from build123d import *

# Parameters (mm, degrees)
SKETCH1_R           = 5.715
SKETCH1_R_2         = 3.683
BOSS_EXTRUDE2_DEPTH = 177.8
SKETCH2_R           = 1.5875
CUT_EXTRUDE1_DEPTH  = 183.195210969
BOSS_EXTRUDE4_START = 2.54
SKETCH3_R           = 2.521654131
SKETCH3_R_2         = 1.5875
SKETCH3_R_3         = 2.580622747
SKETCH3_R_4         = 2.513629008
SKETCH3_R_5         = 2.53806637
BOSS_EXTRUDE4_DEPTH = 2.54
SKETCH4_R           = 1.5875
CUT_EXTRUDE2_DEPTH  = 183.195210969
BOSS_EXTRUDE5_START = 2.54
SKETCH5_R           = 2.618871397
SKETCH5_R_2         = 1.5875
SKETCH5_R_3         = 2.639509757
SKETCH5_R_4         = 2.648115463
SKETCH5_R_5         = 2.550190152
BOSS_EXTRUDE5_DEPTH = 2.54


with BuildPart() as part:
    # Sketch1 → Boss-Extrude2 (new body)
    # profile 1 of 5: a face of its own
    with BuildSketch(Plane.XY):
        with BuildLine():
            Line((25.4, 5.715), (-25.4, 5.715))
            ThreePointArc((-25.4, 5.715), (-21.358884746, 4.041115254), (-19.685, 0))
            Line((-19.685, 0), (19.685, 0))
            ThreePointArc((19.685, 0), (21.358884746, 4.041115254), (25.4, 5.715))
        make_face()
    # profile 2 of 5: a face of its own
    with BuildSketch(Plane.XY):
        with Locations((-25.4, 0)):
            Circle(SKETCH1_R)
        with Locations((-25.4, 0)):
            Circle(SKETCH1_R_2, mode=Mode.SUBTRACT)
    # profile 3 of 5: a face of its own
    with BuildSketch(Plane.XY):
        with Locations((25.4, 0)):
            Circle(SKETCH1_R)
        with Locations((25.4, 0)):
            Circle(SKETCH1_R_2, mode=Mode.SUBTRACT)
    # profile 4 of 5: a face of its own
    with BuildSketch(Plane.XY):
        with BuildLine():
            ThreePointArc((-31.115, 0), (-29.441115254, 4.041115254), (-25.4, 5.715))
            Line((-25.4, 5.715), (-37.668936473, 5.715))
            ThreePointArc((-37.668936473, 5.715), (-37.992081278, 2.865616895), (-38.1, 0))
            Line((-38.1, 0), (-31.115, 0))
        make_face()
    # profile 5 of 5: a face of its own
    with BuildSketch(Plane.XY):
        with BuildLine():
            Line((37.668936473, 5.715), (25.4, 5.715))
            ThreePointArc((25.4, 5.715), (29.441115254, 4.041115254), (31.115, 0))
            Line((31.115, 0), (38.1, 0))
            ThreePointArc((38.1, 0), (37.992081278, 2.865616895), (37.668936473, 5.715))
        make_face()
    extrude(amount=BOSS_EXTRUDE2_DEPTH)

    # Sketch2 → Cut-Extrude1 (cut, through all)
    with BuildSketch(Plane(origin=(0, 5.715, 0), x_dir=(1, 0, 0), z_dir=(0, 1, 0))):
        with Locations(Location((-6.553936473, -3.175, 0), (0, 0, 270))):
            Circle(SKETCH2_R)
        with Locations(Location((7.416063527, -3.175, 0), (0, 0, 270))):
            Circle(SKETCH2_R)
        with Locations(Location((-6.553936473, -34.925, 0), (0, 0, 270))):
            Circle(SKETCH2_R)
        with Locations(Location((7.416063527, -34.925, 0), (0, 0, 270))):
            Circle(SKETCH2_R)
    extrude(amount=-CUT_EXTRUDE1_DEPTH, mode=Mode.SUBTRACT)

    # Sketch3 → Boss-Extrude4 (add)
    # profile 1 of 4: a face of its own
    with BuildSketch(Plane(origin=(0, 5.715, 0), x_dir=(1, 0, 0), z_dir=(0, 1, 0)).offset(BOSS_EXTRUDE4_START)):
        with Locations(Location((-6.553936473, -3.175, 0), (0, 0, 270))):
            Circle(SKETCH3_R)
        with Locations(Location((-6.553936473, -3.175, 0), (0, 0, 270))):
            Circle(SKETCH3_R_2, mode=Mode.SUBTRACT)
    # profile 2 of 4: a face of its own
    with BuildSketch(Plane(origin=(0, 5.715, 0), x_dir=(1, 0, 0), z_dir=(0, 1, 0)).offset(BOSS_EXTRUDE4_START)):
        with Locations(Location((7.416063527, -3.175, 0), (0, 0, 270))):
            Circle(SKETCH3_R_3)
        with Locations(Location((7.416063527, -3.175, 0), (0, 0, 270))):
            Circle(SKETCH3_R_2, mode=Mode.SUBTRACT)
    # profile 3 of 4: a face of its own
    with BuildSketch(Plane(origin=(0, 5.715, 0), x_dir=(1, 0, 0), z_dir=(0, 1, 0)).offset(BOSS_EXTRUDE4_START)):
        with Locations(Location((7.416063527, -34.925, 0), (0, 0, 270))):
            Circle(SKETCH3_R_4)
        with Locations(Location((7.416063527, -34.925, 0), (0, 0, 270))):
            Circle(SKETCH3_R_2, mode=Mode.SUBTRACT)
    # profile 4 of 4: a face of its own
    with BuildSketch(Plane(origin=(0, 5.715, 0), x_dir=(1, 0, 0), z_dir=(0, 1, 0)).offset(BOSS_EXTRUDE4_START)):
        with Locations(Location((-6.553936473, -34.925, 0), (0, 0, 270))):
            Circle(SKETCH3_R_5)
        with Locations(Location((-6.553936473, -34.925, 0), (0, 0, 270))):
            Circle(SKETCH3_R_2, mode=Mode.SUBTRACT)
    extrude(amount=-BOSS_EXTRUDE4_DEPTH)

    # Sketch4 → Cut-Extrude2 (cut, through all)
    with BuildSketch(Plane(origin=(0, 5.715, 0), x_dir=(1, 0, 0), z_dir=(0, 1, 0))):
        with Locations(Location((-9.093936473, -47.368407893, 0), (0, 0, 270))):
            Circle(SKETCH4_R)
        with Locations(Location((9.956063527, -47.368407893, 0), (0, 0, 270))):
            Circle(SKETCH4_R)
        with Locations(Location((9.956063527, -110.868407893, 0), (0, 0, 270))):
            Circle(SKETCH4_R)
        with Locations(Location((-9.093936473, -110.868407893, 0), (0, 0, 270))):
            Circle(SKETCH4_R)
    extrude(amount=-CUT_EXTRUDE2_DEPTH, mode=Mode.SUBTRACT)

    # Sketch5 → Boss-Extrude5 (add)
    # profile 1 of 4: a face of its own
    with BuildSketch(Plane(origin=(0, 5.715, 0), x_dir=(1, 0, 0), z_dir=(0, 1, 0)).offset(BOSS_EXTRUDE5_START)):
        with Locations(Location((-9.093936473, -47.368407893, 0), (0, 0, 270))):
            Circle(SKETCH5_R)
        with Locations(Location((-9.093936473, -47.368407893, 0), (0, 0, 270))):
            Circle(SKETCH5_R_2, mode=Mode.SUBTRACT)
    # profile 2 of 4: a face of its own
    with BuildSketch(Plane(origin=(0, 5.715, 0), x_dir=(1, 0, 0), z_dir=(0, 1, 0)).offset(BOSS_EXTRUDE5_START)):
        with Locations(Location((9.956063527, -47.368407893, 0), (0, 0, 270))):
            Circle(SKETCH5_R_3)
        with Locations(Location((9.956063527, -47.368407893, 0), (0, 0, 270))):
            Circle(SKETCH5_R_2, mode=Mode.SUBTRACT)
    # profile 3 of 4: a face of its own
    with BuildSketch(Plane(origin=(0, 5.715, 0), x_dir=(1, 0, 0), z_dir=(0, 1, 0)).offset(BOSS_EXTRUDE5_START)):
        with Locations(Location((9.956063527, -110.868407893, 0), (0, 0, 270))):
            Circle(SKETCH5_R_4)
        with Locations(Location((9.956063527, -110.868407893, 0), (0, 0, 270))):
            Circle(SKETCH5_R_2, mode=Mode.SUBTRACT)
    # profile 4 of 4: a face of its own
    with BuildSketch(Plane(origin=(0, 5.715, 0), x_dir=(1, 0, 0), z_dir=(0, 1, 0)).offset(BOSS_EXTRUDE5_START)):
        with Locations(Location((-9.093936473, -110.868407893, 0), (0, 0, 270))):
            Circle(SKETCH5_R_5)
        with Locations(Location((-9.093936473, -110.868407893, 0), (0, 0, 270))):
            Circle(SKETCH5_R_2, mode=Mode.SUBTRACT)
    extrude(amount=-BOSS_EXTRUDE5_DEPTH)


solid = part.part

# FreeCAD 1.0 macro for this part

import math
import FreeCAD as App
import Part
import Sketcher
Q = App.Units.Quantity

doc = App.newDocument("Part")
body = doc.addObject("PartDesign::Body", "Body")

# Sketch on XY plane
sketch1 = body.newObject("Sketcher::SketchObject", "Sketch")
sketch1.AttachmentSupport = (doc.getObject("XY_Plane"), [""])
sketch1.MapMode = "FlatFace"
sketch1.addGeometry([
    Part.ArcOfCircle(Part.Circle(App.Vector(0, 0, 0), App.Vector(0, 0, 1), 38.1), math.radians(171.37), math.radians(180)),  # 0
    Part.LineSegment(App.Vector(-38.1, 0, 0), App.Vector(-31.1, 0, 0)),  # 1
    Part.ArcOfCircle(Part.Circle(App.Vector(-25.4, 0, 0), App.Vector(0, 0, 1), 5.7), math.radians(180), math.radians(360)),  # 2
    Part.LineSegment(App.Vector(-19.7, 0, 0), App.Vector(19.7, 0, 0)),  # 3
    Part.ArcOfCircle(Part.Circle(App.Vector(25.4, 0, 0), App.Vector(0, 0, 1), 5.7), math.radians(180), math.radians(360)),  # 4
    Part.LineSegment(App.Vector(31.1, 0, 0), App.Vector(38.1, 0, 0)),  # 5
    Part.ArcOfCircle(Part.Circle(App.Vector(0, 0, 0), App.Vector(0, 0, 1), 38.1), math.radians(0), math.radians(8.63)),  # 6
    Part.LineSegment(App.Vector(37.7, 5.7, 0), App.Vector(-37.7, 5.7, 0)),  # 7
    Part.Circle(App.Vector(-25.4, 0, 0), App.Vector(0, 0, 1), 3.7),  # 8
    Part.Circle(App.Vector(25.4, 0, 0), App.Vector(0, 0, 1), 3.7),  # 9
], False)
sketch1.addConstraint([
    Sketcher.Constraint("Coincident", 0, 2, 1, 1),
    Sketcher.Constraint("Coincident", 1, 2, 2, 1),
    Sketcher.Constraint("Coincident", 2, 2, 3, 1),
    Sketcher.Constraint("Coincident", 3, 2, 4, 1),
    Sketcher.Constraint("Coincident", 4, 2, 5, 1),
    Sketcher.Constraint("Coincident", 5, 2, 6, 1),
    Sketcher.Constraint("Coincident", 6, 2, 7, 1),
    Sketcher.Constraint("Coincident", 7, 2, 0, 1),
    Sketcher.Constraint("Horizontal", 1),
    Sketcher.Constraint("Horizontal", 3),
    Sketcher.Constraint("Horizontal", 5),
    Sketcher.Constraint("Horizontal", 7),
    Sketcher.Constraint("Coincident", 0, 3, -1, 1),
    Sketcher.Constraint("Coincident", 6, 3, -1, 1),
    Sketcher.Constraint("Coincident", 8, 3, 2, 3),
    Sketcher.Constraint("Coincident", 9, 3, 4, 3),
    Sketcher.Constraint("Equal", 2, 4),
    Sketcher.Constraint("Equal", 0, 6),
    Sketcher.Constraint("Equal", 8, 9),
    Sketcher.Constraint("Symmetric", 2, 3, 4, 3, -1, 1),
    Sketcher.Constraint("PointOnObject", 2, 3, -1),
    Sketcher.Constraint("PointOnObject", 0, 2, -1),
    Sketcher.Constraint("PointOnObject", 2, 2, -1),
    Sketcher.Constraint("PointOnObject", 4, 2, -1),
    Sketcher.Constraint("Radius", 0, Q("1.5 in")),
    Sketcher.Constraint("Diameter", 8, Q("0.29 in")),
    Sketcher.Constraint("DistanceX", 2, 3, -1, 1, Q("1 in")),
    Sketcher.Constraint("Radius", 2, Q("0.225 in")),
    Sketcher.Constraint("DistanceY", -1, 1, 6, 2, Q("0.225 in")),
])
pad1 = body.newObject("PartDesign::Pad", "Pad")
pad1.Profile = sketch1
pad1.Length = Q("7 in")

# Sketch on XZ plane
sketch2 = body.newObject("Sketcher::SketchObject", "Sketch001")
sketch2.AttachmentSupport = (doc.getObject("XZ_Plane"), [""])
sketch2.MapMode = "FlatFace"
sketch2.AttachmentOffset = App.Placement(App.Vector(0, 0, -0.225 * 25.4), App.Rotation())
sketch2.addGeometry([
    Part.Circle(App.Vector(-6.6, 3.2, 0), App.Vector(0, 0, 1), 1.6),
    Part.Circle(App.Vector(7.4, 3.2, 0), App.Vector(0, 0, 1), 1.6),
    Part.Circle(App.Vector(-6.6, 34.9, 0), App.Vector(0, 0, 1), 1.6),
    Part.Circle(App.Vector(7.4, 34.9, 0), App.Vector(0, 0, 1), 1.6),
], False)
sketch2.addConstraint([
    Sketcher.Constraint("Equal", 0, 1),
    Sketcher.Constraint("Equal", 1, 2),
    Sketcher.Constraint("Equal", 2, 3),
    Sketcher.Constraint("Horizontal", 0, 3, 1, 3),
    Sketcher.Constraint("Horizontal", 2, 3, 3, 3),
    Sketcher.Constraint("Vertical", 0, 3, 2, 3),
    Sketcher.Constraint("Vertical", 1, 3, 3, 3),
    Sketcher.Constraint("Diameter", 0, Q("0.125 in")),
    Sketcher.Constraint("DistanceX", 0, 3, 1, 3, Q("0.55 in")),
    Sketcher.Constraint("DistanceY", 0, 3, 2, 3, Q("1.25 in")),
    Sketcher.Constraint("DistanceY", -1, 1, 0, 3, Q("0.125 in")),
    Sketcher.Constraint("DistanceX", 0, 3, -1, 1, 6.553936),
])
pocket1 = body.newObject("PartDesign::Pocket", "Pocket")
pocket1.Profile = sketch2
pocket1.Type = "ThroughAll"
pocket1.Reversed = True

# Sketch on XZ plane
sketch3 = body.newObject("Sketcher::SketchObject", "Sketch002")
sketch3.AttachmentSupport = (doc.getObject("XZ_Plane"), [""])
sketch3.MapMode = "FlatFace"
sketch3.AttachmentOffset = App.Placement(App.Vector(0, 0, -0.325 * 25.4), App.Rotation())
sketch3.addGeometry([
    Part.Circle(App.Vector(-6.6, 3.2, 0), App.Vector(0, 0, 1), 2.5),  # 0
    Part.Circle(App.Vector(-6.6, 3.2, 0), App.Vector(0, 0, 1), 1.6),  # 1
    Part.Circle(App.Vector(7.4, 3.2, 0), App.Vector(0, 0, 1), 2.6),  # 2
    Part.Circle(App.Vector(7.4, 3.2, 0), App.Vector(0, 0, 1), 1.6),  # 3
    Part.Circle(App.Vector(7.4, 34.9, 0), App.Vector(0, 0, 1), 2.5),  # 4
    Part.Circle(App.Vector(7.4, 34.9, 0), App.Vector(0, 0, 1), 1.6),  # 5
    Part.Circle(App.Vector(-6.6, 34.9, 0), App.Vector(0, 0, 1), 2.5),  # 6
    Part.Circle(App.Vector(-6.6, 34.9, 0), App.Vector(0, 0, 1), 1.6),  # 7
], False)
sketch3.addConstraint([
    Sketcher.Constraint("Coincident", 1, 3, 0, 3),
    Sketcher.Constraint("Coincident", 3, 3, 2, 3),
    Sketcher.Constraint("Coincident", 5, 3, 4, 3),
    Sketcher.Constraint("Coincident", 7, 3, 6, 3),
    Sketcher.Constraint("Equal", 1, 3),
    Sketcher.Constraint("Equal", 3, 5),
    Sketcher.Constraint("Equal", 5, 7),
    Sketcher.Constraint("Horizontal", 1, 3, 2, 3),
    Sketcher.Constraint("Horizontal", 5, 3, 6, 3),
    Sketcher.Constraint("Vertical", 3, 3, 4, 3),
    Sketcher.Constraint("Vertical", 1, 3, 6, 3),
    Sketcher.Constraint("Diameter", 1, Q("0.125 in")),
    Sketcher.Constraint("DistanceX", 0, 3, 2, 3, Q("0.55 in")),
    Sketcher.Constraint("DistanceY", 2, 3, 4, 3, Q("1.25 in")),
    Sketcher.Constraint("Diameter", 0, 5.043308),
    Sketcher.Constraint("Diameter", 4, 5.027258),
    Sketcher.Constraint("DistanceY", -1, 1, 0, 3, Q("0.125 in")),
    Sketcher.Constraint("Diameter", 2, 5.161245),
    Sketcher.Constraint("Diameter", 6, 5.076133),
    Sketcher.Constraint("DistanceX", 0, 3, -1, 1, 6.553936),
])
pad2 = body.newObject("PartDesign::Pad", "Pad001")
pad2.Profile = sketch3
pad2.Length = Q("0.1 in")

# Sketch on XZ plane
sketch4 = body.newObject("Sketcher::SketchObject", "Sketch003")
sketch4.AttachmentSupport = (doc.getObject("XZ_Plane"), [""])
sketch4.MapMode = "FlatFace"
sketch4.AttachmentOffset = App.Placement(App.Vector(0, 0, -0.225 * 25.4), App.Rotation())
sketch4.addGeometry([
    Part.Circle(App.Vector(-9.1, 47.4, 0), App.Vector(0, 0, 1), 1.6),
    Part.Circle(App.Vector(10, 47.4, 0), App.Vector(0, 0, 1), 1.6),
    Part.Circle(App.Vector(10, 110.9, 0), App.Vector(0, 0, 1), 1.6),
    Part.Circle(App.Vector(-9.1, 110.9, 0), App.Vector(0, 0, 1), 1.6),
], False)
sketch4.addConstraint([
    Sketcher.Constraint("Equal", 0, 1),
    Sketcher.Constraint("Equal", 1, 2),
    Sketcher.Constraint("Equal", 2, 3),
    Sketcher.Constraint("Horizontal", 0, 3, 1, 3),
    Sketcher.Constraint("Horizontal", 2, 3, 3, 3),
    Sketcher.Constraint("Vertical", 1, 3, 2, 3),
    Sketcher.Constraint("Vertical", 0, 3, 3, 3),
    Sketcher.Constraint("Diameter", 0, Q("0.125 in")),
    Sketcher.Constraint("DistanceY", 1, 3, 2, 3, Q("2.5 in")),
    Sketcher.Constraint("DistanceX", 0, 3, 1, 3, Q("0.75 in")),
    Sketcher.Constraint("DistanceX", 0, 3, -1, 1, 9.093936),
    Sketcher.Constraint("DistanceY", -1, 1, 0, 3, 47.368408),
])
pocket2 = body.newObject("PartDesign::Pocket", "Pocket001")
pocket2.Profile = sketch4
pocket2.Type = "ThroughAll"
pocket2.Reversed = True

# Sketch on XZ plane
sketch5 = body.newObject("Sketcher::SketchObject", "Sketch004")
sketch5.AttachmentSupport = (doc.getObject("XZ_Plane"), [""])
sketch5.MapMode = "FlatFace"
sketch5.AttachmentOffset = App.Placement(App.Vector(0, 0, -0.325 * 25.4), App.Rotation())
sketch5.addGeometry([
    Part.Circle(App.Vector(-9.1, 47.4, 0), App.Vector(0, 0, 1), 2.6),  # 0
    Part.Circle(App.Vector(-9.1, 47.4, 0), App.Vector(0, 0, 1), 1.6),  # 1
    Part.Circle(App.Vector(10, 47.4, 0), App.Vector(0, 0, 1), 2.6),  # 2
    Part.Circle(App.Vector(10, 47.4, 0), App.Vector(0, 0, 1), 1.6),  # 3
    Part.Circle(App.Vector(10, 110.9, 0), App.Vector(0, 0, 1), 2.6),  # 4
    Part.Circle(App.Vector(10, 110.9, 0), App.Vector(0, 0, 1), 1.6),  # 5
    Part.Circle(App.Vector(-9.1, 110.9, 0), App.Vector(0, 0, 1), 2.6),  # 6
    Part.Circle(App.Vector(-9.1, 110.9, 0), App.Vector(0, 0, 1), 1.6),  # 7
], False)
sketch5.addConstraint([
    Sketcher.Constraint("Coincident", 1, 3, 0, 3),
    Sketcher.Constraint("Coincident", 3, 3, 2, 3),
    Sketcher.Constraint("Coincident", 5, 3, 4, 3),
    Sketcher.Constraint("Coincident", 7, 3, 6, 3),
    Sketcher.Constraint("Equal", 1, 3),
    Sketcher.Constraint("Equal", 3, 5),
    Sketcher.Constraint("Equal", 5, 7),
    Sketcher.Constraint("Horizontal", 1, 3, 2, 3),
    Sketcher.Constraint("Horizontal", 5, 3, 6, 3),
    Sketcher.Constraint("Vertical", 3, 3, 4, 3),
    Sketcher.Constraint("Vertical", 1, 3, 6, 3),
    Sketcher.Constraint("Diameter", 1, Q("0.125 in")),
    Sketcher.Constraint("DistanceY", 2, 3, 4, 3, Q("2.5 in")),
    Sketcher.Constraint("DistanceX", 0, 3, 2, 3, Q("0.75 in")),
    Sketcher.Constraint("Diameter", 2, 5.27902),
    Sketcher.Constraint("Diameter", 4, 5.296231),
    Sketcher.Constraint("Diameter", 6, 5.10038),
    Sketcher.Constraint("Diameter", 0, 5.237743),
    Sketcher.Constraint("DistanceX", 0, 3, -1, 1, 9.093936),
    Sketcher.Constraint("DistanceY", -1, 1, 0, 3, 47.368408),
])
pad3 = body.newObject("PartDesign::Pad", "Pad002")
pad3.Profile = sketch5
pad3.Length = Q("0.1 in")

doc.recompute()
